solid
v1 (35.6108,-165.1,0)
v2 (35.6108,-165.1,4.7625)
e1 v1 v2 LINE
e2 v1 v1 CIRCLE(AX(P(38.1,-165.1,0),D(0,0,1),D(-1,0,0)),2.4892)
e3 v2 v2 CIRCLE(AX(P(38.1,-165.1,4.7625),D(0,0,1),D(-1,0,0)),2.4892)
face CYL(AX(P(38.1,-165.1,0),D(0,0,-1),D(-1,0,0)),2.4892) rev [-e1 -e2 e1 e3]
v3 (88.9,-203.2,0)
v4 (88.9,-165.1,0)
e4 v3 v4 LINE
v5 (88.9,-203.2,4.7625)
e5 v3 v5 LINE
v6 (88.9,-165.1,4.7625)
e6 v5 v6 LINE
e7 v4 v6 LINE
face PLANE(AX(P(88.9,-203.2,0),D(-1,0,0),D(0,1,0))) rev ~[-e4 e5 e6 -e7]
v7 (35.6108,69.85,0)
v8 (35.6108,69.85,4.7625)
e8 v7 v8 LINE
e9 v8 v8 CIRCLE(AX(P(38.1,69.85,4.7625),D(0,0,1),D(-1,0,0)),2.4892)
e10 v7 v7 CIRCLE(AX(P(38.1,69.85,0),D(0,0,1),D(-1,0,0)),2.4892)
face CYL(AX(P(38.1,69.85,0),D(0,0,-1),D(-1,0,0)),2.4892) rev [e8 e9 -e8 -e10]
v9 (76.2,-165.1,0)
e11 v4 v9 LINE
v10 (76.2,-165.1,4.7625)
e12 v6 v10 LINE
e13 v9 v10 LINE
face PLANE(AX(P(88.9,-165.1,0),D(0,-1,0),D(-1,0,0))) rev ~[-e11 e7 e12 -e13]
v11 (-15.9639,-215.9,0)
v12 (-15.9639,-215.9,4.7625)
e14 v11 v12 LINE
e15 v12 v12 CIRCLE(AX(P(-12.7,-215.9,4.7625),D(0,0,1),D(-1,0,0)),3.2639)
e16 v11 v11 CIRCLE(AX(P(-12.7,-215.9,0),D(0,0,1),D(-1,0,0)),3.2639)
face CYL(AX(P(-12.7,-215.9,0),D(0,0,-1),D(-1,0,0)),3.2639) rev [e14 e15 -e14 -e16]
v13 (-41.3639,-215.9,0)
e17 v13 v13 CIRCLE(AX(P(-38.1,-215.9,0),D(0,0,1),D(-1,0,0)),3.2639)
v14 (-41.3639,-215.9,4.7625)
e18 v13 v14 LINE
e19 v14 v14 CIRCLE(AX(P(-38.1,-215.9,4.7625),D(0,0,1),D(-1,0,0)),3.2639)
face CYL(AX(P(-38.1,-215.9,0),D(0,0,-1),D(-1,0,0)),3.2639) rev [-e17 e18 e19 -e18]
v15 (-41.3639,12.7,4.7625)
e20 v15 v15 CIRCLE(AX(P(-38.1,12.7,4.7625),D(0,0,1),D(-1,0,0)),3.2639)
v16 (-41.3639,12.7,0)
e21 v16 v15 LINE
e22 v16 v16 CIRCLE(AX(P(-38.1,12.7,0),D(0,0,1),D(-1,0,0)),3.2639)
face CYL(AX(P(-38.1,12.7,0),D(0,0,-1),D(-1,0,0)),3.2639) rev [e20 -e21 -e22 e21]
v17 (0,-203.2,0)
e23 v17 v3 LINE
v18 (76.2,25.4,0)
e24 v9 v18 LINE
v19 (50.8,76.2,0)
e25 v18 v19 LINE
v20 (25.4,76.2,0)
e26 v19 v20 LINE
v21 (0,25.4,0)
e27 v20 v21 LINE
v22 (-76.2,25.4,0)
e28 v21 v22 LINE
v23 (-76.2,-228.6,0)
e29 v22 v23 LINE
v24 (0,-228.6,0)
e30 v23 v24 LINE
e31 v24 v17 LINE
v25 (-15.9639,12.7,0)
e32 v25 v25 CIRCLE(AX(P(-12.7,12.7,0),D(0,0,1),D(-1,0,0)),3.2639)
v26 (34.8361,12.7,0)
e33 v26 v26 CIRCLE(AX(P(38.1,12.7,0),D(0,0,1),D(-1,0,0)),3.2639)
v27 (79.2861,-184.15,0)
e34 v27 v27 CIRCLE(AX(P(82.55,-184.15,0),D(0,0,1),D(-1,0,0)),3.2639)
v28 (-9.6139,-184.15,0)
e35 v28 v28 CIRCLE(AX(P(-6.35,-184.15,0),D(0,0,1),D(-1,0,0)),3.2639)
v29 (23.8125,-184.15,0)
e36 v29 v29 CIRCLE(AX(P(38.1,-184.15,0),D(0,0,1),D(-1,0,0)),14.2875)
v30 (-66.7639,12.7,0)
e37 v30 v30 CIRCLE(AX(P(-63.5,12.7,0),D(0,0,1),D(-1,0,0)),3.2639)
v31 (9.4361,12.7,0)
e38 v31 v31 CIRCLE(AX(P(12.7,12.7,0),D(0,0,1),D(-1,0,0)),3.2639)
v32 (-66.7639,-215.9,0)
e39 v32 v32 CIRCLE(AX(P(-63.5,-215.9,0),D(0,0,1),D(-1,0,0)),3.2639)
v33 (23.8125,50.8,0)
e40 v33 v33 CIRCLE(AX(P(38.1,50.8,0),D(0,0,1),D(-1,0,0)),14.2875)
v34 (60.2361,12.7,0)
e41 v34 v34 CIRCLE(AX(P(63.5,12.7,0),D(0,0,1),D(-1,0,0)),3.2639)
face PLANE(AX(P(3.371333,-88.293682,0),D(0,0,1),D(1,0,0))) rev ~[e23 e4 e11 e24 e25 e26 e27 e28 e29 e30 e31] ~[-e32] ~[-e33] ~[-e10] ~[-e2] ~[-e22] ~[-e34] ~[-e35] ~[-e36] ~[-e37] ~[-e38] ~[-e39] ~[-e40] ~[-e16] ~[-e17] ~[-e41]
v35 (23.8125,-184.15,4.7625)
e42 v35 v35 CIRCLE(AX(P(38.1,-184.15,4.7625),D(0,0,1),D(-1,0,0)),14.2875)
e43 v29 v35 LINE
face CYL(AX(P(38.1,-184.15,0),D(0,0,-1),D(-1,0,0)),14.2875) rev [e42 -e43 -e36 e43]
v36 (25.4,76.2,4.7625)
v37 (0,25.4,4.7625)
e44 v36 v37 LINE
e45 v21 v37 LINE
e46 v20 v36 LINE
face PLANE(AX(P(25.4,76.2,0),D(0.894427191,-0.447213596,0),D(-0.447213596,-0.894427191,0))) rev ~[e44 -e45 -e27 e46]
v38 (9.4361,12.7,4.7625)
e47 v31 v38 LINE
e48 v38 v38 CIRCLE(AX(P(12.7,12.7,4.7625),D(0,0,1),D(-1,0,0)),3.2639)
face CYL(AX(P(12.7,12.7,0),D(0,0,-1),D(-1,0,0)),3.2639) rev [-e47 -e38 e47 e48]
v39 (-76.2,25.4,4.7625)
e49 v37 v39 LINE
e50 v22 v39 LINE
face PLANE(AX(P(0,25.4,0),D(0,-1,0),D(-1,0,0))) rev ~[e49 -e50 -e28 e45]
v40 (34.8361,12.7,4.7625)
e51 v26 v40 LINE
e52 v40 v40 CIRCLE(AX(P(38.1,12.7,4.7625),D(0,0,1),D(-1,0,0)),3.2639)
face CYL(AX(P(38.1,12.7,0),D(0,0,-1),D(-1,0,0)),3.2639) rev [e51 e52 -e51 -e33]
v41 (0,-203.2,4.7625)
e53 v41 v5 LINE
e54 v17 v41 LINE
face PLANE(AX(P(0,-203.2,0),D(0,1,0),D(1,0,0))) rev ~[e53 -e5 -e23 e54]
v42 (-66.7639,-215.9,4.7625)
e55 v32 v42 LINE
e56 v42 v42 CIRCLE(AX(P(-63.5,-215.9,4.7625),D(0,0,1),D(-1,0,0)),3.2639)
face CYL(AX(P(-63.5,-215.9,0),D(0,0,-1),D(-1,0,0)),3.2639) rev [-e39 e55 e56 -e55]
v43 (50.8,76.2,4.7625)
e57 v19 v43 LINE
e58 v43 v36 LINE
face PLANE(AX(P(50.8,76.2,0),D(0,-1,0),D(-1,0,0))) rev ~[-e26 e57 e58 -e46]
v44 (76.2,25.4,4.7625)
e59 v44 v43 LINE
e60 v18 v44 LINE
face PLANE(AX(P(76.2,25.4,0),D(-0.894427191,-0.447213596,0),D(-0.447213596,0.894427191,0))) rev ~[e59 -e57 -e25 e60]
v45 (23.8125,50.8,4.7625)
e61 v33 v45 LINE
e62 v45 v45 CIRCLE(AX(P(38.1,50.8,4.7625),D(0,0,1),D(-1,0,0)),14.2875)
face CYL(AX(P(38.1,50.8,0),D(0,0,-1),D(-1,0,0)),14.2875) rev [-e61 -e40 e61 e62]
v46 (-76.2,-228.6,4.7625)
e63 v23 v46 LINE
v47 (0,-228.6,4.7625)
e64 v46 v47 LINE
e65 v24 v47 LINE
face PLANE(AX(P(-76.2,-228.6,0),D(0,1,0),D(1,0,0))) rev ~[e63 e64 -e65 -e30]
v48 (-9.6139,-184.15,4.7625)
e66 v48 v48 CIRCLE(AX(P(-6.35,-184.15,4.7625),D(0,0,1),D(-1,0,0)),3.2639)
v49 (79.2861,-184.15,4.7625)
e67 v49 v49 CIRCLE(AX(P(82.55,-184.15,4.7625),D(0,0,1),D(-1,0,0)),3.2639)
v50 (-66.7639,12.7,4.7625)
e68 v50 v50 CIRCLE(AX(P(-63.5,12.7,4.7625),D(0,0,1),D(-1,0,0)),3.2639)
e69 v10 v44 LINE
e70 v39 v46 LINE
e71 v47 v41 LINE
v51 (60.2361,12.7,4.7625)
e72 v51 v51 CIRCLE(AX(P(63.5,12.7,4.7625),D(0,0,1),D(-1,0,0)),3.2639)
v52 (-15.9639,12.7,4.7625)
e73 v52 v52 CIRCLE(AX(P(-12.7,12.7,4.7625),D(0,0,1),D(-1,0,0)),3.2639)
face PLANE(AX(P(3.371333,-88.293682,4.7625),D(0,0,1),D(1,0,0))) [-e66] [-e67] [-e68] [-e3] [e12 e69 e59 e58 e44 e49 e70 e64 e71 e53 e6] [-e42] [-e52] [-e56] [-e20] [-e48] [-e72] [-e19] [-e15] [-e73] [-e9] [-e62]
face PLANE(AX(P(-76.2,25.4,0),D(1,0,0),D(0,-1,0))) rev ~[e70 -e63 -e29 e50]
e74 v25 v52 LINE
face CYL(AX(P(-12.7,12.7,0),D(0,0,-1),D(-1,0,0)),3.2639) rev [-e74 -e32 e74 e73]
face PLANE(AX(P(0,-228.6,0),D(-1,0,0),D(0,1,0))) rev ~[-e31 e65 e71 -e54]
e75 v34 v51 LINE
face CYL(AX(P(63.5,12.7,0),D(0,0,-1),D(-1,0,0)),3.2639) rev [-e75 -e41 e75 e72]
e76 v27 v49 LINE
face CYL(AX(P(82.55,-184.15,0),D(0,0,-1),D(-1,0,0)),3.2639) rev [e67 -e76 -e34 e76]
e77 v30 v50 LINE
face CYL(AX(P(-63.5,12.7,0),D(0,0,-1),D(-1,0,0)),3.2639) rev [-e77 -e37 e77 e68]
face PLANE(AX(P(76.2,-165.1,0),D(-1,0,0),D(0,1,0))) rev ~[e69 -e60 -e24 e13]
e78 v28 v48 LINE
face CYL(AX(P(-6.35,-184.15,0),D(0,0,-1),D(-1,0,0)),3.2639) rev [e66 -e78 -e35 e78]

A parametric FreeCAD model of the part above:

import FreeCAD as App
import Part
import Sketcher

V = App.Vector
Q = App.Units.Quantity

doc = App.newDocument("Part")
body = doc.addObject("PartDesign::Body", "Body")

sketch1 = body.newObject("Sketcher::SketchObject", "Sketch")
sketch1.AttachmentSupport = (doc.getObject("XY_Plane"), [""])
sketch1.MapMode = "FlatFace"
sketch1.addGeometry([
    Part.LineSegment(V(76.2, 25.4, 0), V(50.8, 76.2, 0)),
    Part.LineSegment(V(50.8, 76.2, 0), V(25.4, 76.2, 0)),
    Part.LineSegment(V(25.4, 76.2, 0), V(0, 25.4, 0)),
    Part.LineSegment(V(0, 25.4, 0), V(-76.2, 25.4, 0)),
    Part.LineSegment(V(-76.2, 25.4, 0), V(-76.2, -228.6, 0)),
    Part.LineSegment(V(-76.2, -228.6, 0), V(0, -228.6, 0)),
    Part.LineSegment(V(0, -228.6, 0), V(0, -203.2, 0)),
    Part.LineSegment(V(0, -203.2, 0), V(88.9, -203.2, 0)),
    Part.LineSegment(V(88.9, -203.2, 0), V(88.9, -165.1, 0)),
    Part.LineSegment(V(88.9, -165.1, 0), V(76.2, -165.1, 0)),
    Part.LineSegment(V(76.2, -165.1, 0), V(76.2, 25.4, 0)),
    Part.Circle(V(-63.5, -215.9, 0), V(0, 0, 1), 3.3),
    Part.Circle(V(-38.1, -215.9, 0), V(0, 0, 1), 3.3),
    Part.Circle(V(-12.7, -215.9, 0), V(0, 0, 1), 3.3),
    Part.Circle(V(-6.3, -184.2, 0), V(0, 0, 1), 3.3),
    Part.Circle(V(38.1, -184.2, 0), V(0, 0, 1), 14.3),
    Part.Circle(V(38.1, -165.1, 0), V(0, 0, 1), 2.5),
    Part.Circle(V(82.5, -184.2, 0), V(0, 0, 1), 3.3),
    Part.Circle(V(-63.5, 12.7, 0), V(0, 0, 1), 3.3),
    Part.Circle(V(-38.1, 12.7, 0), V(0, 0, 1), 3.3),
    Part.Circle(V(-12.7, 12.7, 0), V(0, 0, 1), 3.3),
    Part.Circle(V(12.7, 12.7, 0), V(0, 0, 1), 3.3),
    Part.Circle(V(38.1, 12.7, 0), V(0, 0, 1), 3.3),
    Part.Circle(V(38.1, 50.8, 0), V(0, 0, 1), 14.3),
    Part.Circle(V(38.1, 69.8, 0), V(0, 0, 1), 2.5),
    Part.Circle(V(63.5, 12.7, 0), V(0, 0, 1), 3.3),
], False)
sketch1.addConstraint([
    Sketcher.Constraint("Coincident", 0, 2, 1, 1),
    Sketcher.Constraint("Coincident", 1, 2, 2, 1),
    Sketcher.Constraint("Coincident", 2, 2, 3, 1),
    Sketcher.Constraint("Coincident", 3, 2, 4, 1),
    Sketcher.Constraint("Coincident", 4, 2, 5, 1),
    Sketcher.Constraint("Coincident", 5, 2, 6, 1),
    Sketcher.Constraint("Coincident", 6, 2, 7, 1),
    Sketcher.Constraint("Coincident", 7, 2, 8, 1),
    Sketcher.Constraint("Coincident", 8, 2, 9, 1),
    Sketcher.Constraint("Coincident", 9, 2, 10, 1),
    Sketcher.Constraint("Coincident", 10, 2, 0, 1),
    Sketcher.Constraint("Horizontal", 1),
    Sketcher.Constraint("Horizontal", 3),
    Sketcher.Constraint("Vertical", 4),
    Sketcher.Constraint("Horizontal", 5),
    Sketcher.Constraint("Vertical", 6),
    Sketcher.Constraint("Horizontal", 7),
    Sketcher.Constraint("Vertical", 8),
    Sketcher.Constraint("Horizontal", 9),
    Sketcher.Constraint("Vertical", 10),
    Sketcher.Constraint("Equal", 11, 12),
    Sketcher.Constraint("Equal", 12, 13),
    Sketcher.Constraint("Equal", 13, 14),
    Sketcher.Constraint("Equal", 14, 17),
    Sketcher.Constraint("Equal", 17, 18),
    Sketcher.Constraint("Equal", 18, 19),
    Sketcher.Constraint("Equal", 19, 20),
    Sketcher.Constraint("Equal", 20, 21),
    Sketcher.Constraint("Equal", 21, 22),
    Sketcher.Constraint("Equal", 15, 23),
    Sketcher.Constraint("Equal", 16, 24),
    Sketcher.Constraint("Equal", 22, 25),
    Sketcher.Constraint("Symmetric", 20, 3, 21, 3, -2),
    Sketcher.Constraint("Symmetric", 19, 3, 22, 3, -2),
    Sketcher.Constraint("Symmetric", 18, 3, 25, 3, -2),
    Sketcher.Constraint("Symmetric", 3, 2, 10, 2, -2),
    Sketcher.Constraint("PointOnObject", 2, 2, -2),
    Sketcher.Constraint("PointOnObject", 5, 2, -2),
    Sketcher.Constraint("Horizontal", 11, 3, 12, 3),
    Sketcher.Constraint("Horizontal", 12, 3, 13, 3),
    Sketcher.Constraint("Horizontal", 14, 3, 15, 3),
    Sketcher.Constraint("Horizontal", 15, 3, 17, 3),
    Sketcher.Constraint("Horizontal", 18, 3, 19, 3),
    Sketcher.Constraint("Horizontal", 19, 3, 20, 3),
    Sketcher.Constraint("Horizontal", 16, 3, 8, 2),
    Sketcher.Constraint("Vertical", 15, 3, 16, 3),
    Sketcher.Constraint("Vertical", 11, 3, 18, 3),
    Sketcher.Constraint("Vertical", 12, 3, 19, 3),
    Sketcher.Constraint("Vertical", 13, 3, 20, 3),
    Sketcher.Constraint("Vertical", 16, 3, 22, 3),
    Sketcher.Constraint("Vertical", 22, 3, 23, 3),
    Sketcher.Constraint("Vertical", 23, 3, 24, 3),
    Sketcher.Constraint("Equal", 1, 6),
    Sketcher.Constraint("Equal", 0, 2),
    Sketcher.Constraint("DistanceX", 1, 2, 1, 1, Q("1 in")),
    Sketcher.Constraint("DistanceX", 3, 2, 3, 1, Q("3 in")),
    Sketcher.Constraint("DistanceY", 4, 2, 4, 1, Q("10 in")),
    Sketcher.Constraint("Diameter", 11, Q("0.257 in")),
    Sketcher.Constraint("Diameter", 15, Q("1.125 in")),
    Sketcher.Constraint("Diameter", 16, Q("0.196 in")),
    Sketcher.Constraint("DistanceX", 7, 1, 7, 2, Q("3.5 in")),
    Sketcher.Constraint("DistanceY", 8, 1, 8, 2, Q("1.5 in")),
    Sketcher.Constraint("DistanceY", -1, 1, 23, 3, Q("2 in")),
    Sketcher.Constraint("DistanceY", -1, 1, 0, 2, Q("3 in")),
    Sketcher.Constraint("DistanceY", -1, 1, 2, 2, Q("1 in")),
    Sketcher.Constraint("DistanceX", 11, 3, 12, 3, Q("1 in")),
    Sketcher.Constraint("DistanceX", 12, 3, 13, 3, Q("1 in")),
    Sketcher.Constraint("DistanceX", 13, 3, 15, 3, Q("2 in")),
    Sketcher.Constraint("DistanceY", 13, 3, 16, 3, Q("2 in")),
    Sketcher.Constraint("DistanceY", 16, 3, 18, 3, Q("7 in")),
    Sketcher.Constraint("DistanceX", 14, 3, 17, 3, Q("3.5 in")),
    Sketcher.Constraint("DistanceX", 14, 3, -1, 1, Q("0.25 in")),
    Sketcher.Constraint("DistanceY", 14, 3, -1, 1, Q("7.25 in")),
    Sketcher.Constraint("DistanceY", -1, 1, 24, 3, Q("2.75 in")),
])
pad1 = body.newObject("PartDesign::Pad", "Pad")
pad1.Profile = sketch1
pad1.Length = Q("0.1875 in")

doc.recompute()
